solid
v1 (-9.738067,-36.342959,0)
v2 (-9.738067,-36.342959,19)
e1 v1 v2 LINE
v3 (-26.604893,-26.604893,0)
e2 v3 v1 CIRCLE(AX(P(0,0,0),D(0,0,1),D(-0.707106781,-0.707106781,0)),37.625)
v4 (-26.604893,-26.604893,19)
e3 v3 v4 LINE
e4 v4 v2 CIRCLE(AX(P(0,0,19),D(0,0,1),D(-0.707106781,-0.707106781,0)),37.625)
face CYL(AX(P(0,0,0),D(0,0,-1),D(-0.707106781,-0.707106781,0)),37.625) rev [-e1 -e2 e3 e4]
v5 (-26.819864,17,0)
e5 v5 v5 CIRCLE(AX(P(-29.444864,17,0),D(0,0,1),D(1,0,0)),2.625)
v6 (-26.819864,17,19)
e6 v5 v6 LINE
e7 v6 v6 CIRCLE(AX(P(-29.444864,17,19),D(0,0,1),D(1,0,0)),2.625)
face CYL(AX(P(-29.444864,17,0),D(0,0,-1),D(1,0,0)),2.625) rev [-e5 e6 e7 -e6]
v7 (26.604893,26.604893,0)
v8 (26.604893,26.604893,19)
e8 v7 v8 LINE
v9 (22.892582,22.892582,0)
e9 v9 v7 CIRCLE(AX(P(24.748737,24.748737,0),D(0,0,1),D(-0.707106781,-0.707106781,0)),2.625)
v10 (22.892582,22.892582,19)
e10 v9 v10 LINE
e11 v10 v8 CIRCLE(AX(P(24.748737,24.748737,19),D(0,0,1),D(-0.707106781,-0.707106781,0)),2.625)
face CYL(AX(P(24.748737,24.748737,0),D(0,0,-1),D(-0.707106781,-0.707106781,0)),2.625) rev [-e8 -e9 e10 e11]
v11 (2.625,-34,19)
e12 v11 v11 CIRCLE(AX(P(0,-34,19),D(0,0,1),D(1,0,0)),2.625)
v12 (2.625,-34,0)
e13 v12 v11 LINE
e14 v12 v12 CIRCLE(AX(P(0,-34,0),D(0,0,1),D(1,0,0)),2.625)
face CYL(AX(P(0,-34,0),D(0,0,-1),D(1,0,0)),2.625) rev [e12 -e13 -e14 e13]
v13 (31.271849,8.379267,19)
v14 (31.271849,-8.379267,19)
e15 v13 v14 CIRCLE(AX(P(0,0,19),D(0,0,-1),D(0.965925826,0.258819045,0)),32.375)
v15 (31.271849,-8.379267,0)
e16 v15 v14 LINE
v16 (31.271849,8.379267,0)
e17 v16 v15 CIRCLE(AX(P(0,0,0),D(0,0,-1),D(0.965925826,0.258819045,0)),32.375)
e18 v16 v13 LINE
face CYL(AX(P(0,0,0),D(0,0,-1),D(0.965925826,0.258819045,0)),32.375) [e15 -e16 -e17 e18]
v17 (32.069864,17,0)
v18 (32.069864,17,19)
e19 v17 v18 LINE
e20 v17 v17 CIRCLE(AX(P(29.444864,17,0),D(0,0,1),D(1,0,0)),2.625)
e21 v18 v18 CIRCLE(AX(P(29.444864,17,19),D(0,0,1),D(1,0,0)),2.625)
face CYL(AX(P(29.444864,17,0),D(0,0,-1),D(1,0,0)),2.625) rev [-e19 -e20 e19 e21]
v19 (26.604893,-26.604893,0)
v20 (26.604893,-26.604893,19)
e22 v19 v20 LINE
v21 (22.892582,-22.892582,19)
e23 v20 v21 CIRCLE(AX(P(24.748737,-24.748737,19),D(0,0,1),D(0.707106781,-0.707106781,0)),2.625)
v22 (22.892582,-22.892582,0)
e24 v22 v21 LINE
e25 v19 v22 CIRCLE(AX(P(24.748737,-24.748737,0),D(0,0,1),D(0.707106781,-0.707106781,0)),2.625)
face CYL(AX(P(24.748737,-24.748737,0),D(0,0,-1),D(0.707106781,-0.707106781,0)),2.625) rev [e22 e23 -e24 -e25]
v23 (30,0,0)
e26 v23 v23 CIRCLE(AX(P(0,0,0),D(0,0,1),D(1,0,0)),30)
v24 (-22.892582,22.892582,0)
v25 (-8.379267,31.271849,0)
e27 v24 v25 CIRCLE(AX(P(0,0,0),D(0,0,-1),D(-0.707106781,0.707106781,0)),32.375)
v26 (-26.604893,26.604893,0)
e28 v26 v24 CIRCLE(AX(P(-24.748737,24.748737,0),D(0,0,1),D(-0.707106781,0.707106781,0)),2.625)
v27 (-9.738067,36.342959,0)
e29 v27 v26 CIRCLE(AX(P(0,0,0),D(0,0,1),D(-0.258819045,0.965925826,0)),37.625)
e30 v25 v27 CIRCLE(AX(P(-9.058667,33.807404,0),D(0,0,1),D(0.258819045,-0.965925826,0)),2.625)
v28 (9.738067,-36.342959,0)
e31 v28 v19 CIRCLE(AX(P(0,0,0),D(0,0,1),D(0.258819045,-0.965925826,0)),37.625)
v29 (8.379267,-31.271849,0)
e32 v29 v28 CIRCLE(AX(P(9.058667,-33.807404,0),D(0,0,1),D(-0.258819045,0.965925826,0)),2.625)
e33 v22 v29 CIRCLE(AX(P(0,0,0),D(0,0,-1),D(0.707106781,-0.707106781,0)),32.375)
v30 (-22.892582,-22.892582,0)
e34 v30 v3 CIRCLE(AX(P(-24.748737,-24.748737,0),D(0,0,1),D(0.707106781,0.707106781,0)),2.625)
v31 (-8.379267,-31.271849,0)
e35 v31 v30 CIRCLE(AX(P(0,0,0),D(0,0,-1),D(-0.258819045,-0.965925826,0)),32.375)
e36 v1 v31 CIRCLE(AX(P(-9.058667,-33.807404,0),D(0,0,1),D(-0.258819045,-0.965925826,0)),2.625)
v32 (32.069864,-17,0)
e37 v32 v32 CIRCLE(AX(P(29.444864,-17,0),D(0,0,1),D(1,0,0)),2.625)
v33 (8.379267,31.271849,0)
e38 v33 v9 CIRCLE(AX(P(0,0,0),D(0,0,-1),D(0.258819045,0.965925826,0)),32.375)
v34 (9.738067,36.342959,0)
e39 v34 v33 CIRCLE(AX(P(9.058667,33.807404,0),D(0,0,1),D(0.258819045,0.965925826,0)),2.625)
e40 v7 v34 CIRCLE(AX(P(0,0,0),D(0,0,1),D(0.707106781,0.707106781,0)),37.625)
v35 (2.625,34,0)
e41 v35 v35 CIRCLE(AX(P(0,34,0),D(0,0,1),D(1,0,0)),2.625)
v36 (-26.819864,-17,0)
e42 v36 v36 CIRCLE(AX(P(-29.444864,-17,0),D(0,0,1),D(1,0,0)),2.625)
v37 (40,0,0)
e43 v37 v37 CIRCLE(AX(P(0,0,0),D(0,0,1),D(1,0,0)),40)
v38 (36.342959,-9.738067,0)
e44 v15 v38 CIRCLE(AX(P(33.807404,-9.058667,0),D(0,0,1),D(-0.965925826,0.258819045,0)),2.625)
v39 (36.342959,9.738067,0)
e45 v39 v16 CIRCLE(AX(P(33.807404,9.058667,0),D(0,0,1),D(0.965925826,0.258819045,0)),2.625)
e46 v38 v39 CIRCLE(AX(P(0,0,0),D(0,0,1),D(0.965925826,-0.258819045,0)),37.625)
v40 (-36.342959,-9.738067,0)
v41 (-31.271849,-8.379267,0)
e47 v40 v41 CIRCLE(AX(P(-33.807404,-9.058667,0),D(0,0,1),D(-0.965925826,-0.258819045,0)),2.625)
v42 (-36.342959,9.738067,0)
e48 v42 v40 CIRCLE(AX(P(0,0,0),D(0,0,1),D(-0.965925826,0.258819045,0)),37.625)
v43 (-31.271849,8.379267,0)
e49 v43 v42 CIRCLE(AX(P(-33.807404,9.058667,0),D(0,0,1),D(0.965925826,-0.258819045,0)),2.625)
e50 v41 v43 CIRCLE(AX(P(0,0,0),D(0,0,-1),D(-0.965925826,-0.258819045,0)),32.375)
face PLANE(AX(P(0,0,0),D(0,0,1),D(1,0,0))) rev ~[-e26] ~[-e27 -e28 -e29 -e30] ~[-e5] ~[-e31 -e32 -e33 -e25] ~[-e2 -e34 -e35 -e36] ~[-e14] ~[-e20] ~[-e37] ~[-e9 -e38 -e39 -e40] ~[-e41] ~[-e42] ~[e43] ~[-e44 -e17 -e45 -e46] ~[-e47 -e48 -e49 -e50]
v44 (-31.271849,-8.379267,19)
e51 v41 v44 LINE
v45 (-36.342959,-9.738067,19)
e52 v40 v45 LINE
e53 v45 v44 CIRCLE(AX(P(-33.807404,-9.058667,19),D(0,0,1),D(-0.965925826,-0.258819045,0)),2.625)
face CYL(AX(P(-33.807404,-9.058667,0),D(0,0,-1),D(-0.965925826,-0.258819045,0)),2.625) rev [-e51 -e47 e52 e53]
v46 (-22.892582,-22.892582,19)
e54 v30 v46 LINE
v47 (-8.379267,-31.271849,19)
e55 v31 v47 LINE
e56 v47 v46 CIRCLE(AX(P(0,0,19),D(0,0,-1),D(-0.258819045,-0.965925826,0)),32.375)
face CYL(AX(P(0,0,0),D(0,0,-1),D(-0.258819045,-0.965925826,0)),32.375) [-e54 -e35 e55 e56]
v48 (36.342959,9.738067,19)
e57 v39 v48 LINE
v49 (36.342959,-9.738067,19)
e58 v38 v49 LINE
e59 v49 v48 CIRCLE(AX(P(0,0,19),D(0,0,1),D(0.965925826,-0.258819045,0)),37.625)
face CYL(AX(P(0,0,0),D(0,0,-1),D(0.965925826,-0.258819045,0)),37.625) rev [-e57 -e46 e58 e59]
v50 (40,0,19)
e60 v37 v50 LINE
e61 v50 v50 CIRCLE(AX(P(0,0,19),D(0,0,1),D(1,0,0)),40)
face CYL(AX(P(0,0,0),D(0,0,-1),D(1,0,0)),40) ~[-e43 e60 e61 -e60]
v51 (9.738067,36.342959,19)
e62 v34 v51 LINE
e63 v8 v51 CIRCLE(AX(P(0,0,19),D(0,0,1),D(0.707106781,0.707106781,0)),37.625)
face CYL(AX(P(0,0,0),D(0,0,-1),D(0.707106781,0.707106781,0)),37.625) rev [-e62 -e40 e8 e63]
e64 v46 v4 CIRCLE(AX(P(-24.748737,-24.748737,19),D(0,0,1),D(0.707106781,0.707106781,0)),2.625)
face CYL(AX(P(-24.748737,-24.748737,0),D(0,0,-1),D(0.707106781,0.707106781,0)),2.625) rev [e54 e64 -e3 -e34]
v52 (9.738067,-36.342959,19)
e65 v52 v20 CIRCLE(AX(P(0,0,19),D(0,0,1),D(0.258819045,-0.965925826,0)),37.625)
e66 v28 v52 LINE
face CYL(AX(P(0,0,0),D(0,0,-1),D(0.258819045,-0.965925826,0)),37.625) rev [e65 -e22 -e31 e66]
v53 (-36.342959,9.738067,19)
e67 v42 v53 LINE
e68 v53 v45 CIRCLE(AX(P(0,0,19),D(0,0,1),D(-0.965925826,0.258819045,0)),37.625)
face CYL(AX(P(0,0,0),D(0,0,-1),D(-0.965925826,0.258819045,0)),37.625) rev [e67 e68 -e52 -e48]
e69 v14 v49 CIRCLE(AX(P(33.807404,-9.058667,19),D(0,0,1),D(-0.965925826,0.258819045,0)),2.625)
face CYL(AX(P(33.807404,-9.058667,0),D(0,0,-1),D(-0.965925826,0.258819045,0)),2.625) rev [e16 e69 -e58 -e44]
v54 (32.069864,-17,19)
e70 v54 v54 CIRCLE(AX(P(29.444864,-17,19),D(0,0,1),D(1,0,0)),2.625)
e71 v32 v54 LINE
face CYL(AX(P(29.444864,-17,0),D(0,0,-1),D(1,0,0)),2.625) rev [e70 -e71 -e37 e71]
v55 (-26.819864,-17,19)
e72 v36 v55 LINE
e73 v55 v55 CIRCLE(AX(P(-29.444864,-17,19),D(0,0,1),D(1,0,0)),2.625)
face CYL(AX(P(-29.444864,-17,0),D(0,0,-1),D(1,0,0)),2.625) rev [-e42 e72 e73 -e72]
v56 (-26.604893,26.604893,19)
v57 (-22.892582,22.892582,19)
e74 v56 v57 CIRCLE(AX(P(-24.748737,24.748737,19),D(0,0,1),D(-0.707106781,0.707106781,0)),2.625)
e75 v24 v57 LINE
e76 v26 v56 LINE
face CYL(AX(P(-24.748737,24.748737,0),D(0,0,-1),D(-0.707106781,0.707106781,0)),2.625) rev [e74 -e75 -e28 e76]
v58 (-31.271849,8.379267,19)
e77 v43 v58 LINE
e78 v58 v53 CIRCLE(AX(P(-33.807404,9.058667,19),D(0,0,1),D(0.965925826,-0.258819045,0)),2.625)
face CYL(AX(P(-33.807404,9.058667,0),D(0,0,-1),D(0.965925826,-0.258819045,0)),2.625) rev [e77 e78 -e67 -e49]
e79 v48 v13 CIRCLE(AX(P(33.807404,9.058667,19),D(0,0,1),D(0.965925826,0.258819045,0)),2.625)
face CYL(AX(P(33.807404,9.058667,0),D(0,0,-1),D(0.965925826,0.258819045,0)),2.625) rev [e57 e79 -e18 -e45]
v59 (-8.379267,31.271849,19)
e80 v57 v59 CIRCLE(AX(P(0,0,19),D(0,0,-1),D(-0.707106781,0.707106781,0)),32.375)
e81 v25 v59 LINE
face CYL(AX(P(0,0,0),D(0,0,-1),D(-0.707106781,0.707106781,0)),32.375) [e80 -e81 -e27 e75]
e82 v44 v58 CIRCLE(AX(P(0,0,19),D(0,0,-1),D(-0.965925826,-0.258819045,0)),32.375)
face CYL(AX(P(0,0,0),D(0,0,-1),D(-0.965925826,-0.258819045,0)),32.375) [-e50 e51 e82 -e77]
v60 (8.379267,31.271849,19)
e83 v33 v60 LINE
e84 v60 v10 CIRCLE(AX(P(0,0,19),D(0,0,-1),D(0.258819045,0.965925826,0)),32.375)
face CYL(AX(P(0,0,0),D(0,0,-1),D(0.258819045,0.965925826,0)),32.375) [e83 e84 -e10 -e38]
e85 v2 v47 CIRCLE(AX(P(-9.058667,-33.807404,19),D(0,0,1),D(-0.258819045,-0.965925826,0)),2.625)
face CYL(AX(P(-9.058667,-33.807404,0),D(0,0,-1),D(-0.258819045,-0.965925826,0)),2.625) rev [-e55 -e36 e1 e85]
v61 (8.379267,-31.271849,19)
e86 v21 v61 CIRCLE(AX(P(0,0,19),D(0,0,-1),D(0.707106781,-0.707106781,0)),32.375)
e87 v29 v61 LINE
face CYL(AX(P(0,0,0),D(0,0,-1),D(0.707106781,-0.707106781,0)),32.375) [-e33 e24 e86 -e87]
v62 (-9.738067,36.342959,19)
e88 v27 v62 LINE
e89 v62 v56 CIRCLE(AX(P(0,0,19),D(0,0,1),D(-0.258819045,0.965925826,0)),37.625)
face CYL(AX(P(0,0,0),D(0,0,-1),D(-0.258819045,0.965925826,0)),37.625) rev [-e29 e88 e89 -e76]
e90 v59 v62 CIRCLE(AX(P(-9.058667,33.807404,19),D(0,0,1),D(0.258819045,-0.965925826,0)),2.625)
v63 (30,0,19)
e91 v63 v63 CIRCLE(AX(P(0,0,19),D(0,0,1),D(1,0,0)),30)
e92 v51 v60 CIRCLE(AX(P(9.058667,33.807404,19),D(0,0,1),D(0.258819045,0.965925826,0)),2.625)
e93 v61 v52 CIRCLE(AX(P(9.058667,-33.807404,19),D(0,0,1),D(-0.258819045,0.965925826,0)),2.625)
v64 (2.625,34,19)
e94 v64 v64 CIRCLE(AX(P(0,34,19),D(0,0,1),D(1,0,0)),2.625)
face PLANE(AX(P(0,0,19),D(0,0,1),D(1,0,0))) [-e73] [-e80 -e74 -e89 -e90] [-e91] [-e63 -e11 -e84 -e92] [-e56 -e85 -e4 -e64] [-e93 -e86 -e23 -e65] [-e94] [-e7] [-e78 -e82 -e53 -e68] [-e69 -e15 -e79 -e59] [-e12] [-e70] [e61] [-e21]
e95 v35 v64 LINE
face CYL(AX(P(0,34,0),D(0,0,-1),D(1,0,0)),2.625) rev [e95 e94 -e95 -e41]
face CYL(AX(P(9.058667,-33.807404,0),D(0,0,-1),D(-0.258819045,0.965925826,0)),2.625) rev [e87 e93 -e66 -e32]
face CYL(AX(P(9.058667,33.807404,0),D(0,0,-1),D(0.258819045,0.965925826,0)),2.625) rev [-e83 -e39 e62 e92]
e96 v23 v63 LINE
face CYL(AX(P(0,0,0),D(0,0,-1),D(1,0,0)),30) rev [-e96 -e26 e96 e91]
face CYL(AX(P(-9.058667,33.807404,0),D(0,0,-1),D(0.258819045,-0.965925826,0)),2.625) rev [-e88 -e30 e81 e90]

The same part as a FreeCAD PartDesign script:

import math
import FreeCAD as App
import Part
import Sketcher
from FreeCAD import Vector
Q = App.Units.Quantity

doc = App.newDocument("Part")
params = doc.addObject("Spreadsheet::Sheet", "Params")
for row, (alias, value) in enumerate([
    ("sketch1_diameter", "80 mm"),
    ("sketch1_diameter2", "60 mm"),
    ("sketch1_diameter3", "5.25 mm"),
    ("pad1_length", "19 mm"),
], start=1):
    params.set(f"A{row}", alias)
    params.set(f"B{row}", "=" + value)
    params.setAlias(f"B{row}", alias)

body = doc.addObject("PartDesign::Body", "Body")

# Sketch on XY plane
sketch1 = body.newObject("Sketcher::SketchObject", "Sketch")
sketch1.AttachmentSupport = (doc.getObject("XY_Plane"), [""])
sketch1.MapMode = "FlatFace"
sketch1.addGeometry(Part.Circle(Vector(0, 0, 0), Vector(0, 0, 1), 40), False)
sketch1.addGeometry(Part.ArcOfCircle(Part.Circle(Vector(0, 0, 0), Vector(0, 0, 1), 37.6), math.radians(-135), math.radians(-105)), False)
sketch1.addGeometry(Part.ArcOfCircle(Part.Circle(Vector(-24.7, -24.7, 0), Vector(0, 0, 1), 2.6), math.radians(45), math.radians(225)), False)
sketch1.addGeometry(Part.ArcOfCircle(Part.Circle(Vector(0, 0, 0), Vector(0, 0, 1), 32.4), math.radians(-135), math.radians(-105)), False)
sketch1.addGeometry(Part.ArcOfCircle(Part.Circle(Vector(-9.1, -33.8, 0), Vector(0, 0, 1), 2.6), math.radians(-105), math.radians(75)), False)
sketch1.addGeometry(Part.Circle(Vector(-29.4, -17, 0), Vector(0, 0, 1), 2.6), False)
sketch1.addGeometry(Part.ArcOfCircle(Part.Circle(Vector(0, 0, 0), Vector(0, 0, 1), 37.6), math.radians(165), math.radians(195)), False)
sketch1.addGeometry(Part.ArcOfCircle(Part.Circle(Vector(-33.8, 9.1, 0), Vector(0, 0, 1), 2.6), math.radians(-15), math.radians(165)), False)
sketch1.addGeometry(Part.ArcOfCircle(Part.Circle(Vector(0, 0, 0), Vector(0, 0, 1), 32.4), math.radians(165), math.radians(195)), False)
sketch1.addGeometry(Part.ArcOfCircle(Part.Circle(Vector(-33.8, -9.1, 0), Vector(0, 0, 1), 2.6), math.radians(-165), math.radians(15)), False)
sketch1.addGeometry(Part.Circle(Vector(0, -34, 0), Vector(0, 0, 1), 2.6), False)
sketch1.addGeometry(Part.ArcOfCircle(Part.Circle(Vector(0, 0, 0), Vector(0, 0, 1), 37.6), math.radians(-75), math.radians(-45)), False)
sketch1.addGeometry(Part.ArcOfCircle(Part.Circle(Vector(9.1, -33.8, 0), Vector(0, 0, 1), 2.6), math.radians(105), math.radians(285)), False)
sketch1.addGeometry(Part.ArcOfCircle(Part.Circle(Vector(0, 0, 0), Vector(0, 0, 1), 32.4), math.radians(-75), math.radians(-45)), False)
sketch1.addGeometry(Part.ArcOfCircle(Part.Circle(Vector(24.7, -24.7, 0), Vector(0, 0, 1), 2.6), math.radians(-45), math.radians(135)), False)
sketch1.addGeometry(Part.Circle(Vector(29.4, -17, 0), Vector(0, 0, 1), 2.6), False)
sketch1.addGeometry(Part.Circle(Vector(-29.4, 17, 0), Vector(0, 0, 1), 2.6), False)
sketch1.addGeometry(Part.ArcOfCircle(Part.Circle(Vector(0, 0, 0), Vector(0, 0, 1), 37.6), math.radians(105), math.radians(135)), False)
sketch1.addGeometry(Part.ArcOfCircle(Part.Circle(Vector(-9.1, 33.8, 0), Vector(0, 0, 1), 2.6), math.radians(-75), math.radians(105)), False)
sketch1.addGeometry(Part.ArcOfCircle(Part.Circle(Vector(0, 0, 0), Vector(0, 0, 1), 32.4), math.radians(105), math.radians(135)), False)
sketch1.addGeometry(Part.ArcOfCircle(Part.Circle(Vector(-24.7, 24.7, 0), Vector(0, 0, 1), 2.6), math.radians(135), math.radians(315)), False)
sketch1.addGeometry(Part.Circle(Vector(0, 0, 0), Vector(0, 0, 1), 30), False)
sketch1.addGeometry(Part.ArcOfCircle(Part.Circle(Vector(0, 0, 0), Vector(0, 0, 1), 37.6), math.radians(-15), math.radians(15)), False)
sketch1.addGeometry(Part.ArcOfCircle(Part.Circle(Vector(33.8, -9.1, 0), Vector(0, 0, 1), 2.6), math.radians(165), math.radians(345)), False)
sketch1.addGeometry(Part.ArcOfCircle(Part.Circle(Vector(0, 0, 0), Vector(0, 0, 1), 32.4), math.radians(-15), math.radians(15)), False)
sketch1.addGeometry(Part.ArcOfCircle(Part.Circle(Vector(33.8, 9.1, 0), Vector(0, 0, 1), 2.6), math.radians(15), math.radians(195)), False)
sketch1.addGeometry(Part.Circle(Vector(29.4, 17, 0), Vector(0, 0, 1), 2.6), False)
sketch1.addGeometry(Part.Circle(Vector(0, 34, 0), Vector(0, 0, 1), 2.6), False)
sketch1.addGeometry(Part.ArcOfCircle(Part.Circle(Vector(0, 0, 0), Vector(0, 0, 1), 37.6), math.radians(45), math.radians(75)), False)
sketch1.addGeometry(Part.ArcOfCircle(Part.Circle(Vector(24.7, 24.7, 0), Vector(0, 0, 1), 2.6), math.radians(-135), math.radians(45)), False)
sketch1.addGeometry(Part.ArcOfCircle(Part.Circle(Vector(0, 0, 0), Vector(0, 0, 1), 32.4), math.radians(45), math.radians(75)), False)
sketch1.addGeometry(Part.ArcOfCircle(Part.Circle(Vector(9.1, 33.8, 0), Vector(0, 0, 1), 2.6), math.radians(75), math.radians(255)), False)
sketch1.addConstraint(Sketcher.Constraint("Tangent", 1, 1, 2, 2))
sketch1.addConstraint(Sketcher.Constraint("Tangent", 2, 1, 3, 1))
sketch1.addConstraint(Sketcher.Constraint("Tangent", 3, 2, 4, 2))
sketch1.addConstraint(Sketcher.Constraint("Tangent", 4, 1, 1, 2))
sketch1.addConstraint(Sketcher.Constraint("Tangent", 6, 1, 7, 2))
sketch1.addConstraint(Sketcher.Constraint("Tangent", 7, 1, 8, 1))
sketch1.addConstraint(Sketcher.Constraint("Tangent", 8, 2, 9, 2))
sketch1.addConstraint(Sketcher.Constraint("Tangent", 9, 1, 6, 2))
sketch1.addConstraint(Sketcher.Constraint("Tangent", 11, 1, 12, 2))
sketch1.addConstraint(Sketcher.Constraint("Tangent", 12, 1, 13, 1))
sketch1.addConstraint(Sketcher.Constraint("Tangent", 13, 2, 14, 2))
sketch1.addConstraint(Sketcher.Constraint("Tangent", 14, 1, 11, 2))
sketch1.addConstraint(Sketcher.Constraint("Tangent", 17, 1, 18, 2))
sketch1.addConstraint(Sketcher.Constraint("Tangent", 18, 1, 19, 1))
sketch1.addConstraint(Sketcher.Constraint("Tangent", 19, 2, 20, 2))
sketch1.addConstraint(Sketcher.Constraint("Tangent", 20, 1, 17, 2))
sketch1.addConstraint(Sketcher.Constraint("Tangent", 22, 1, 23, 2))
sketch1.addConstraint(Sketcher.Constraint("Tangent", 23, 1, 24, 1))
sketch1.addConstraint(Sketcher.Constraint("Tangent", 24, 2, 25, 2))
sketch1.addConstraint(Sketcher.Constraint("Tangent", 25, 1, 22, 2))
sketch1.addConstraint(Sketcher.Constraint("Tangent", 28, 1, 29, 2))
sketch1.addConstraint(Sketcher.Constraint("Tangent", 29, 1, 30, 1))
sketch1.addConstraint(Sketcher.Constraint("Tangent", 30, 2, 31, 2))
sketch1.addConstraint(Sketcher.Constraint("Tangent", 31, 1, 28, 2))
sketch1.addConstraint(Sketcher.Constraint("Coincident", 0, 3, -1, 1))
sketch1.addConstraint(Sketcher.Constraint("Coincident", 1, 3, -1, 1))
sketch1.addConstraint(Sketcher.Constraint("Coincident", 3, 3, -1, 1))
sketch1.addConstraint(Sketcher.Constraint("Coincident", 6, 3, -1, 1))
sketch1.addConstraint(Sketcher.Constraint("Coincident", 8, 3, -1, 1))
sketch1.addConstraint(Sketcher.Constraint("Coincident", 11, 3, -1, 1))
sketch1.addConstraint(Sketcher.Constraint("Coincident", 13, 3, -1, 1))
sketch1.addConstraint(Sketcher.Constraint("Coincident", 17, 3, -1, 1))
sketch1.addConstraint(Sketcher.Constraint("Coincident", 19, 3, -1, 1))
sketch1.addConstraint(Sketcher.Constraint("Coincident", 21, 3, -1, 1))
sketch1.addConstraint(Sketcher.Constraint("Coincident", 22, 3, -1, 1))
sketch1.addConstraint(Sketcher.Constraint("Coincident", 24, 3, -1, 1))
sketch1.addConstraint(Sketcher.Constraint("Coincident", 28, 3, -1, 1))
sketch1.addConstraint(Sketcher.Constraint("Coincident", 30, 3, -1, 1))
sketch1.addConstraint(Sketcher.Constraint("Equal", 4, 5))
sketch1.addConstraint(Sketcher.Constraint("Equal", 1, 6))
sketch1.addConstraint(Sketcher.Constraint("Equal", 5, 7))
sketch1.addConstraint(Sketcher.Constraint("Equal", 9, 10))
sketch1.addConstraint(Sketcher.Constraint("Equal", 6, 11))
sketch1.addConstraint(Sketcher.Constraint("Equal", 10, 12))
sketch1.addConstraint(Sketcher.Constraint("Equal", 14, 15))
sketch1.addConstraint(Sketcher.Constraint("Equal", 15, 16))
sketch1.addConstraint(Sketcher.Constraint("Equal", 11, 17))
sketch1.addConstraint(Sketcher.Constraint("Equal", 16, 18))
sketch1.addConstraint(Sketcher.Constraint("Equal", 17, 22))
sketch1.addConstraint(Sketcher.Constraint("Equal", 20, 23))
sketch1.addConstraint(Sketcher.Constraint("Equal", 25, 26))
sketch1.addConstraint(Sketcher.Constraint("Equal", 26, 27))
sketch1.addConstraint(Sketcher.Constraint("Equal", 22, 28))
sketch1.addConstraint(Sketcher.Constraint("Equal", 27, 29))
sketch1.addConstraint(Sketcher.Constraint("Symmetric", 15, 3, 16, 3, -1, 1))
sketch1.addConstraint(Sketcher.Constraint("Symmetric", 5, 3, 26, 3, -1, 1))
sketch1.addConstraint(Sketcher.Constraint("Symmetric", 10, 3, 27, 3, -1, 1))
sketch1.addConstraint(Sketcher.Constraint("Symmetric", 5, 3, 15, 3, -2))
sketch1.addConstraint(Sketcher.Constraint("PointOnObject", 10, 3, -2))
sketch1.addConstraint(Sketcher.Constraint("Horizontal", 4, 3, 12, 3))
sketch1.addConstraint(Sketcher.Constraint("Horizontal", 2, 3, 14, 3))
sketch1.addConstraint(Sketcher.Constraint("Horizontal", 9, 3, 23, 3))
sketch1.addConstraint(Sketcher.Constraint("Horizontal", 7, 3, 25, 3))
sketch1.addConstraint(Sketcher.Constraint("Horizontal", 20, 3, 29, 3))
sketch1.addConstraint(Sketcher.Constraint("Horizontal", 18, 3, 31, 3))
sketch1.addConstraint(Sketcher.Constraint("Vertical", 7, 3, 9, 3))
sketch1.addConstraint(Sketcher.Constraint("Vertical", 4, 3, 18, 3))
sketch1.addConstraint(Sketcher.Constraint("Vertical", 2, 3, 20, 3))
sketch1.addConstraint(Sketcher.Constraint("Diameter", 0, Q("80 mm")))
sketch1.addConstraint(Sketcher.Constraint("Diameter", 21, Q("60 mm")))
sketch1.addConstraint(Sketcher.Constraint("Diameter", 5, Q("5.25 mm")))
sketch1.addConstraint(Sketcher.Constraint("DistanceY", 5, 3, -1, 1, Q("17 mm")))
sketch1.addConstraint(Sketcher.Constraint("DistanceY", 10, 3, -1, 1, Q("34 mm")))
sketch1.addConstraint(Sketcher.Constraint("Radius", 1, Q("37.625 mm")))
sketch1.addConstraint(Sketcher.Constraint("DistanceX", 4, 1, 4, 3, Q("0.6794 mm")))
sketch1.addConstraint(Sketcher.Constraint("DistanceY", 7, 1, 7, 3, Q("0.6794 mm")))
sketch1.addConstraint(Sketcher.Constraint("DistanceX", 2, 3, 4, 3, Q("15.690071 mm")))
sketch1.addConstraint(Sketcher.Constraint("DistanceX", 7, 3, 5, 3, Q("4.36254 mm")))
sketch1.setExpression("Constraints[68]", "Params.sketch1_diameter")
sketch1.setExpression("Constraints[69]", "Params.sketch1_diameter2")
sketch1.setExpression("Constraints[70]", "Params.sketch1_diameter3")
pad1 = body.newObject("PartDesign::Pad", "Pad")
pad1.Profile = sketch1
pad1.setExpression("Length", "Params.pad1_length")

doc.recompute()
